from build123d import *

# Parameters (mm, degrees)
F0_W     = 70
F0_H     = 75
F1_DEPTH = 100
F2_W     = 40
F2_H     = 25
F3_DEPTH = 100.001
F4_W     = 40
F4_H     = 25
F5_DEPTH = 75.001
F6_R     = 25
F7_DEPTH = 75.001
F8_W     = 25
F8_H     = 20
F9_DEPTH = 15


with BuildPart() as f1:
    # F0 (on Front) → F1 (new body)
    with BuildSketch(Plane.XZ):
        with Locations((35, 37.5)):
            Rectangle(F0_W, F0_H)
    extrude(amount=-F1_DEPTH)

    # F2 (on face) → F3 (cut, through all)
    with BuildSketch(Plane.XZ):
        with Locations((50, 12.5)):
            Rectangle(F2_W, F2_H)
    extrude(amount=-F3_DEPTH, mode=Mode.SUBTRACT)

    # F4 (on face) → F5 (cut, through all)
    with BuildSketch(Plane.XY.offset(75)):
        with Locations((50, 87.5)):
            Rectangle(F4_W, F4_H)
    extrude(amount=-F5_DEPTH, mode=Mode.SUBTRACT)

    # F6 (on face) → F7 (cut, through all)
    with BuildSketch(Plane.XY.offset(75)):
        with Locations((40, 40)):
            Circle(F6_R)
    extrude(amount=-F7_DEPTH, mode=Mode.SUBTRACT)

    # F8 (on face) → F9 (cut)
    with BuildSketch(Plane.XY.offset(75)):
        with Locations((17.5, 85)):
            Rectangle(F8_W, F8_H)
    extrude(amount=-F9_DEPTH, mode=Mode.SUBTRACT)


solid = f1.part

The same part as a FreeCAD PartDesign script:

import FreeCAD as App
import Part
import Sketcher

V = App.Vector
Q = App.Units.Quantity

doc = App.newDocument("Part")
body = doc.addObject("PartDesign::Body", "Body")

# Sketch on XZ plane
sketch1 = doc.addObject("Sketcher::SketchObject", "Sketch")
body.addObject(sketch1)
sketch1.AttachmentSupport = (doc.XZ_Plane, [""])
sketch1.MapMode = "FlatFace"
sketch1.addGeometry(Part.LineSegment(V(0, 75, 0), V(0, 0, 0)), False)
sketch1.addGeometry(Part.LineSegment(V(0, 0, 0), V(70, 0, 0)), False)
sketch1.addGeometry(Part.LineSegment(V(70, 0, 0), V(70, 75, 0)), False)
sketch1.addGeometry(Part.LineSegment(V(70, 75, 0), V(0, 75, 0)), False)
sketch1.addConstraint(Sketcher.Constraint("Coincident", 0, 2, 1, 1))
sketch1.addConstraint(Sketcher.Constraint("Coincident", 1, 2, 2, 1))
sketch1.addConstraint(Sketcher.Constraint("Coincident", 2, 2, 3, 1))
sketch1.addConstraint(Sketcher.Constraint("Coincident", 3, 2, 0, 1))
sketch1.addConstraint(Sketcher.Constraint("Vertical", 0))
sketch1.addConstraint(Sketcher.Constraint("Horizontal", 1))
sketch1.addConstraint(Sketcher.Constraint("Vertical", 2))
sketch1.addConstraint(Sketcher.Constraint("Horizontal", 3))
sketch1.addConstraint(Sketcher.Constraint("Coincident", 0, 2, -1, 1))
sketch1.addConstraint(Sketcher.Constraint("DistanceX", 1, 1, 1, 2, Q("70 mm")))
sketch1.addConstraint(Sketcher.Constraint("DistanceY", 0, 2, 0, 1, Q("75 mm")))
pad1 = doc.addObject("PartDesign::Pad", "Pad")
body.addObject(pad1)
pad1.Profile = sketch1
pad1.Length = 100
pad1.Reversed = True

# Sketch on XZ plane
sketch2 = doc.addObject("Sketcher::SketchObject", "Sketch001")
body.addObject(sketch2)
sketch2.AttachmentSupport = (doc.XZ_Plane, [""])
sketch2.MapMode = "FlatFace"
sketch2.addGeometry(Part.LineSegment(V(30, 25, 0), V(30, 0, 0)), False)
sketch2.addGeometry(Part.LineSegment(V(30, 0, 0), V(70, 0, 0)), False)
sketch2.addGeometry(Part.LineSegment(V(70, 0, 0), V(70, 25, 0)), False)
sketch2.addGeometry(Part.LineSegment(V(70, 25, 0), V(30, 25, 0)), False)
sketch2.addConstraint(Sketcher.Constraint("Coincident", 0, 2, 1, 1))
sketch2.addConstraint(Sketcher.Constraint("Coincident", 1, 2, 2, 1))
sketch2.addConstraint(Sketcher.Constraint("Coincident", 2, 2, 3, 1))
sketch2.addConstraint(Sketcher.Constraint("Coincident", 3, 2, 0, 1))
sketch2.addConstraint(Sketcher.Constraint("Vertical", 0))
sketch2.addConstraint(Sketcher.Constraint("Horizontal", 1))
sketch2.addConstraint(Sketcher.Constraint("Vertical", 2))
sketch2.addConstraint(Sketcher.Constraint("Horizontal", 3))
sketch2.addConstraint(Sketcher.Constraint("PointOnObject", 0, 2, -1))
sketch2.addConstraint(Sketcher.Constraint("DistanceX", 1, 1, 1, 2, Q("40 mm")))
sketch2.addConstraint(Sketcher.Constraint("DistanceY", 0, 2, 0, 1, Q("25 mm")))
sketch2.addConstraint(Sketcher.Constraint("DistanceX", -1, 1, 0, 2, Q("30 mm")))
pocket1 = doc.addObject("PartDesign::Pocket", "Pocket")
body.addObject(pocket1)
pocket1.Profile = sketch2
pocket1.Type = "ThroughAll"

# Sketch on XY plane
sketch3 = doc.addObject("Sketcher::SketchObject", "Sketch002")
body.addObject(sketch3)
sketch3.AttachmentSupport = (doc.XY_Plane, [""])
sketch3.MapMode = "FlatFace"
sketch3.AttachmentOffset = App.Placement(V(0, 0, 75), App.Rotation())
sketch3.addGeometry(Part.LineSegment(V(30, 100, 0), V(30, 75, 0)), False)
sketch3.addGeometry(Part.LineSegment(V(30, 75, 0), V(70, 75, 0)), False)
sketch3.addGeometry(Part.LineSegment(V(70, 75, 0), V(70, 100, 0)), False)
sketch3.addGeometry(Part.LineSegment(V(70, 100, 0), V(30, 100, 0)), False)
sketch3.addConstraint(Sketcher.Constraint("Coincident", 0, 2, 1, 1))
sketch3.addConstraint(Sketcher.Constraint("Coincident", 1, 2, 2, 1))
sketch3.addConstraint(Sketcher.Constraint("Coincident", 2, 2, 3, 1))
sketch3.addConstraint(Sketcher.Constraint("Coincident", 3, 2, 0, 1))
sketch3.addConstraint(Sketcher.Constraint("Vertical", 0))
sketch3.addConstraint(Sketcher.Constraint("Horizontal", 1))
sketch3.addConstraint(Sketcher.Constraint("Vertical", 2))
sketch3.addConstraint(Sketcher.Constraint("Horizontal", 3))
sketch3.addConstraint(Sketcher.Constraint("DistanceX", 1, 1, 1, 2, Q("40 mm")))
sketch3.addConstraint(Sketcher.Constraint("DistanceY", 0, 2, 0, 1, Q("25 mm")))
sketch3.addConstraint(Sketcher.Constraint("DistanceX", -1, 1, 0, 2, Q("30 mm")))
sketch3.addConstraint(Sketcher.Constraint("DistanceY", -1, 1, 0, 2, Q("75 mm")))
pocket2 = doc.addObject("PartDesign::Pocket", "Pocket001")
body.addObject(pocket2)
pocket2.Profile = sketch3
pocket2.Type = "ThroughAll"

# Sketch on XY plane
sketch4 = doc.addObject("Sketcher::SketchObject", "Sketch003")
body.addObject(sketch4)
sketch4.AttachmentSupport = (doc.XY_Plane, [""])
sketch4.MapMode = "FlatFace"
sketch4.AttachmentOffset = App.Placement(V(0, 0, 75), App.Rotation())
sketch4.addGeometry(Part.Circle(V(40, 40, 0), V(0, 0, 1), 25), False)
sketch4.addConstraint(Sketcher.Constraint("Diameter", 0, Q("50 mm")))
sketch4.addConstraint(Sketcher.Constraint("DistanceX", -1, 1, 0, 3, Q("40 mm")))
sketch4.addConstraint(Sketcher.Constraint("DistanceY", -1, 1, 0, 3, Q("40 mm")))
pocket3 = doc.addObject("PartDesign::Pocket", "Pocket002")
body.addObject(pocket3)
pocket3.Profile = sketch4
pocket3.Type = "ThroughAll"

# Sketch on XY plane
sketch5 = doc.addObject("Sketcher::SketchObject", "Sketch004")
body.addObject(sketch5)
sketch5.AttachmentSupport = (doc.XY_Plane, [""])
sketch5.MapMode = "FlatFace"
sketch5.AttachmentOffset = App.Placement(V(0, 0, 75), App.Rotation())
sketch5.addGeometry(Part.LineSegment(V(5, 95, 0), V(5, 75, 0)), False)
sketch5.addGeometry(Part.LineSegment(V(5, 75, 0), V(30, 75, 0)), False)
sketch5.addGeometry(Part.LineSegment(V(30, 75, 0), V(30, 95, 0)), False)
sketch5.addGeometry(Part.LineSegment(V(30, 95, 0), V(5, 95, 0)), False)
sketch5.addConstraint(Sketcher.Constraint("Coincident", 0, 2, 1, 1))
sketch5.addConstraint(Sketcher.Constraint("Coincident", 1, 2, 2, 1))
sketch5.addConstraint(Sketcher.Constraint("Coincident", 2, 2, 3, 1))
sketch5.addConstraint(Sketcher.Constraint("Coincident", 3, 2, 0, 1))
sketch5.addConstraint(Sketcher.Constraint("Vertical", 0))
sketch5.addConstraint(Sketcher.Constraint("Horizontal", 1))
sketch5.addConstraint(Sketcher.Constraint("Vertical", 2))
sketch5.addConstraint(Sketcher.Constraint("Horizontal", 3))
sketch5.addConstraint(Sketcher.Constraint("DistanceX", 1, 1, 1, 2, Q("25 mm")))
sketch5.addConstraint(Sketcher.Constraint("DistanceY", 0, 2, 0, 1, Q("20 mm")))
sketch5.addConstraint(Sketcher.Constraint("DistanceX", -1, 1, 0, 2, Q("5 mm")))
sketch5.addConstraint(Sketcher.Constraint("DistanceY", -1, 1, 0, 2, Q("75 mm")))
pocket4 = doc.addObject("PartDesign::Pocket", "Pocket003")
body.addObject(pocket4)
pocket4.Profile = sketch5
pocket4.Length = 15

doc.recompute()
